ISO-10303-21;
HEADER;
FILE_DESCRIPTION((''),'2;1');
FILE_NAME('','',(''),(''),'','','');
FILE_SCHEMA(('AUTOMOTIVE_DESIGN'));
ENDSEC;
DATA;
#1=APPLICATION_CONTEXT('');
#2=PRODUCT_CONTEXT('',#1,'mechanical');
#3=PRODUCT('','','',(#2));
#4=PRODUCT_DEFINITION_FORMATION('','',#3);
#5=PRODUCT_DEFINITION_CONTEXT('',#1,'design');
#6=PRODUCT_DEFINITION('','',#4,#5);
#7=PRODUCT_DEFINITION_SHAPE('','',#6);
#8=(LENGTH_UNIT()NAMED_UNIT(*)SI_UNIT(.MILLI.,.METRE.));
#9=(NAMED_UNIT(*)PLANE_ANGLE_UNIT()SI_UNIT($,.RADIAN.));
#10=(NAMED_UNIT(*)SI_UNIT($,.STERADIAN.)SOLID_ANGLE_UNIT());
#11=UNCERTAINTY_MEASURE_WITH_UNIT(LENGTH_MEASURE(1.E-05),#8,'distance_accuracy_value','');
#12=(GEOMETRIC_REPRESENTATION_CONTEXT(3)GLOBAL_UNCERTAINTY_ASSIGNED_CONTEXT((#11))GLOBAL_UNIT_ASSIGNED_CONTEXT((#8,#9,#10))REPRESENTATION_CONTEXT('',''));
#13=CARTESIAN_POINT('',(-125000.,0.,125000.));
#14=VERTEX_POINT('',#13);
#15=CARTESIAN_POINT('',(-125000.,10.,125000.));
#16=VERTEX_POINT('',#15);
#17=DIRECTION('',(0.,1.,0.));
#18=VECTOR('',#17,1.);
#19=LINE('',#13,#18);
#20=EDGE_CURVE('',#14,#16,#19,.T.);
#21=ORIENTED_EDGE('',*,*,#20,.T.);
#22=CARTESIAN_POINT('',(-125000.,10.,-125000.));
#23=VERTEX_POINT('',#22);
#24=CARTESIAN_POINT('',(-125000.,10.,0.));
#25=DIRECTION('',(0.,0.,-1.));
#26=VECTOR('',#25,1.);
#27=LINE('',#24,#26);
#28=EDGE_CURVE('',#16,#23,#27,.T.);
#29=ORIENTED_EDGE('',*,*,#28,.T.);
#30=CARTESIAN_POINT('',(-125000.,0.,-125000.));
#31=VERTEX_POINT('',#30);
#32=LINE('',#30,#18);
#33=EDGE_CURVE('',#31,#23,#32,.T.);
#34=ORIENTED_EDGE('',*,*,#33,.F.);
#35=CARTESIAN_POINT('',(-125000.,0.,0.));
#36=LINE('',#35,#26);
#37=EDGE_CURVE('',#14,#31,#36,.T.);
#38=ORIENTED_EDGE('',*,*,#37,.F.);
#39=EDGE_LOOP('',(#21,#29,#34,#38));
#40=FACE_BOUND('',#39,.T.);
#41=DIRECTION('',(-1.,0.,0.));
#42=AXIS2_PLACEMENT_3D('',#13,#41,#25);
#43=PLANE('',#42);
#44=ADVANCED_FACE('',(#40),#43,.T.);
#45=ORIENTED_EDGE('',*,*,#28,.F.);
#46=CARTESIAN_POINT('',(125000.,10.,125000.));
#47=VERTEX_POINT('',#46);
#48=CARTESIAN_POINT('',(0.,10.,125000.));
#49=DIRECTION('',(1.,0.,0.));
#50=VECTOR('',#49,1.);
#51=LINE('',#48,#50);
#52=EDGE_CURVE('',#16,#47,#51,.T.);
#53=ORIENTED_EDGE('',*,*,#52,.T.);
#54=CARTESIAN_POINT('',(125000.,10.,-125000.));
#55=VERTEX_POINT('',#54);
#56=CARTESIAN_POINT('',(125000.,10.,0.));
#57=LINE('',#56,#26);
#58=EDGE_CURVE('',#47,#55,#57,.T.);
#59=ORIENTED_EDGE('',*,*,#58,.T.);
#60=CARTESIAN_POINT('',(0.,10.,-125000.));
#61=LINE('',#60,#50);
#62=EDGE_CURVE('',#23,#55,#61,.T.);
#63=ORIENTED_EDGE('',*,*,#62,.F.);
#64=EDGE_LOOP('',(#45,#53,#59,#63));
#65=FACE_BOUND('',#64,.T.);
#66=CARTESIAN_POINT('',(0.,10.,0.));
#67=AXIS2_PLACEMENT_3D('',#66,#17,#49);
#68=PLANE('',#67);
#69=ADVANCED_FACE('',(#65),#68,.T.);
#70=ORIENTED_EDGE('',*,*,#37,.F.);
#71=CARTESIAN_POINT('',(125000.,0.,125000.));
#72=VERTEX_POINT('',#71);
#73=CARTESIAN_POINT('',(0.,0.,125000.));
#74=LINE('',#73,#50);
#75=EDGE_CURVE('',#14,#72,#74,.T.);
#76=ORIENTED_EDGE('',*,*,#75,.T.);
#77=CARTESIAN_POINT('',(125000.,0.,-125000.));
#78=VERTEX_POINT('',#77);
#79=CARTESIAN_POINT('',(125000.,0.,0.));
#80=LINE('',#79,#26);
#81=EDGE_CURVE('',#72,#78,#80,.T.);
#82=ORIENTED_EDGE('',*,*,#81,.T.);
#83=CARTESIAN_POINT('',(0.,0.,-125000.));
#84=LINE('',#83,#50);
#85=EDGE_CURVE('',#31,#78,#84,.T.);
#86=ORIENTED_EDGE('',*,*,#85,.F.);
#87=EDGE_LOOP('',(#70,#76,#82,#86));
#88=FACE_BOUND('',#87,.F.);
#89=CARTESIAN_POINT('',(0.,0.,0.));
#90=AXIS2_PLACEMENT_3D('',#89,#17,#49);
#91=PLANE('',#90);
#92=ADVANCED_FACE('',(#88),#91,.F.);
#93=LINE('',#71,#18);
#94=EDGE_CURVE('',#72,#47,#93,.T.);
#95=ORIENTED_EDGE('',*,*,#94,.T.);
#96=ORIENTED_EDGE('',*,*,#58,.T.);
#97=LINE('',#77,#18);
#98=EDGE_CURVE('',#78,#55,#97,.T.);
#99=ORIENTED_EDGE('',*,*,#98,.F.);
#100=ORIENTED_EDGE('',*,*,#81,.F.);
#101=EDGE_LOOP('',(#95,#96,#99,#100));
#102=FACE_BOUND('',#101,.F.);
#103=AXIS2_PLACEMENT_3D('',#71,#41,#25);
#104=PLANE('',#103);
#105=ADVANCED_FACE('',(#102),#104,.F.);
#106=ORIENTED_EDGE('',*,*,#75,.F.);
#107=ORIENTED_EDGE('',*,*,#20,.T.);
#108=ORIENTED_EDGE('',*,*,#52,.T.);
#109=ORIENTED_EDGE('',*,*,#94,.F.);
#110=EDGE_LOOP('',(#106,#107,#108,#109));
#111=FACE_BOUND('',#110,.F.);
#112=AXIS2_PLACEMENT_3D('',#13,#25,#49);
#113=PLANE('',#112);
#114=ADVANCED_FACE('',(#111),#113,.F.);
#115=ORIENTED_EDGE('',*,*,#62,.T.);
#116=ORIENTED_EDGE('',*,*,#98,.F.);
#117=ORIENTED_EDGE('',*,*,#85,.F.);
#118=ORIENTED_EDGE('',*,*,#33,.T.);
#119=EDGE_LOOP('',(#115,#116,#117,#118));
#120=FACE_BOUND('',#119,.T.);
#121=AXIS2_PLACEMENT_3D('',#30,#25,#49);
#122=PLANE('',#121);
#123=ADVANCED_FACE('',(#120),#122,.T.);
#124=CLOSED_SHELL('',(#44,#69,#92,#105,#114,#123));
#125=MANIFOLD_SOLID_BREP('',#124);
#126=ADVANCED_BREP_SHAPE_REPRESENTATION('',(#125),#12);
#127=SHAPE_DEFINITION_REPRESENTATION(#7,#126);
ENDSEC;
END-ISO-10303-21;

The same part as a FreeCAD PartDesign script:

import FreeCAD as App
import Part
import Sketcher

V = App.Vector


def add_polygon(sketch, points):
    """Adds a closed chain of lines whose ends are joined by coincident constraints."""
    first, n = sketch.GeometryCount, len(points)
    for a, b in zip(points, points[1:] + points[:1]):
        sketch.addGeometry(Part.LineSegment(App.Vector(*a, 0), App.Vector(*b, 0)), False)
    for i in range(n):
        sketch.addConstraint(Sketcher.Constraint("Coincident", first + i, 2, first + (i + 1) % n, 1))

doc = App.newDocument("Part")
body = doc.addObject("PartDesign::Body", "Body")

sketch1 = body.newObject("Sketcher::SketchObject", "Sketch")
sketch1.AttachmentSupport = (doc.getObject("XZ_Plane"), [""])
sketch1.MapMode = "FlatFace"
add_polygon(sketch1, [(-125000, -125000), (-125000, 125000), (125000, 125000), (125000, -125000)])
sketch1.addConstraint([
    Sketcher.Constraint("Vertical", 0),
    Sketcher.Constraint("Horizontal", 1),
    Sketcher.Constraint("Vertical", 2),
    Sketcher.Constraint("Horizontal", 3),
    Sketcher.Constraint("Symmetric", 0, 2, 2, 2, -1, 1),
    Sketcher.Constraint("Equal", 3, 0),
    Sketcher.Constraint("DistanceX", 1, 1, 1, 2, 250000.0),
])
pad1 = body.newObject("PartDesign::Pad", "Pad")
pad1.Profile = sketch1
pad1.Length = 10
pad1.Reversed = True

doc.recompute()
